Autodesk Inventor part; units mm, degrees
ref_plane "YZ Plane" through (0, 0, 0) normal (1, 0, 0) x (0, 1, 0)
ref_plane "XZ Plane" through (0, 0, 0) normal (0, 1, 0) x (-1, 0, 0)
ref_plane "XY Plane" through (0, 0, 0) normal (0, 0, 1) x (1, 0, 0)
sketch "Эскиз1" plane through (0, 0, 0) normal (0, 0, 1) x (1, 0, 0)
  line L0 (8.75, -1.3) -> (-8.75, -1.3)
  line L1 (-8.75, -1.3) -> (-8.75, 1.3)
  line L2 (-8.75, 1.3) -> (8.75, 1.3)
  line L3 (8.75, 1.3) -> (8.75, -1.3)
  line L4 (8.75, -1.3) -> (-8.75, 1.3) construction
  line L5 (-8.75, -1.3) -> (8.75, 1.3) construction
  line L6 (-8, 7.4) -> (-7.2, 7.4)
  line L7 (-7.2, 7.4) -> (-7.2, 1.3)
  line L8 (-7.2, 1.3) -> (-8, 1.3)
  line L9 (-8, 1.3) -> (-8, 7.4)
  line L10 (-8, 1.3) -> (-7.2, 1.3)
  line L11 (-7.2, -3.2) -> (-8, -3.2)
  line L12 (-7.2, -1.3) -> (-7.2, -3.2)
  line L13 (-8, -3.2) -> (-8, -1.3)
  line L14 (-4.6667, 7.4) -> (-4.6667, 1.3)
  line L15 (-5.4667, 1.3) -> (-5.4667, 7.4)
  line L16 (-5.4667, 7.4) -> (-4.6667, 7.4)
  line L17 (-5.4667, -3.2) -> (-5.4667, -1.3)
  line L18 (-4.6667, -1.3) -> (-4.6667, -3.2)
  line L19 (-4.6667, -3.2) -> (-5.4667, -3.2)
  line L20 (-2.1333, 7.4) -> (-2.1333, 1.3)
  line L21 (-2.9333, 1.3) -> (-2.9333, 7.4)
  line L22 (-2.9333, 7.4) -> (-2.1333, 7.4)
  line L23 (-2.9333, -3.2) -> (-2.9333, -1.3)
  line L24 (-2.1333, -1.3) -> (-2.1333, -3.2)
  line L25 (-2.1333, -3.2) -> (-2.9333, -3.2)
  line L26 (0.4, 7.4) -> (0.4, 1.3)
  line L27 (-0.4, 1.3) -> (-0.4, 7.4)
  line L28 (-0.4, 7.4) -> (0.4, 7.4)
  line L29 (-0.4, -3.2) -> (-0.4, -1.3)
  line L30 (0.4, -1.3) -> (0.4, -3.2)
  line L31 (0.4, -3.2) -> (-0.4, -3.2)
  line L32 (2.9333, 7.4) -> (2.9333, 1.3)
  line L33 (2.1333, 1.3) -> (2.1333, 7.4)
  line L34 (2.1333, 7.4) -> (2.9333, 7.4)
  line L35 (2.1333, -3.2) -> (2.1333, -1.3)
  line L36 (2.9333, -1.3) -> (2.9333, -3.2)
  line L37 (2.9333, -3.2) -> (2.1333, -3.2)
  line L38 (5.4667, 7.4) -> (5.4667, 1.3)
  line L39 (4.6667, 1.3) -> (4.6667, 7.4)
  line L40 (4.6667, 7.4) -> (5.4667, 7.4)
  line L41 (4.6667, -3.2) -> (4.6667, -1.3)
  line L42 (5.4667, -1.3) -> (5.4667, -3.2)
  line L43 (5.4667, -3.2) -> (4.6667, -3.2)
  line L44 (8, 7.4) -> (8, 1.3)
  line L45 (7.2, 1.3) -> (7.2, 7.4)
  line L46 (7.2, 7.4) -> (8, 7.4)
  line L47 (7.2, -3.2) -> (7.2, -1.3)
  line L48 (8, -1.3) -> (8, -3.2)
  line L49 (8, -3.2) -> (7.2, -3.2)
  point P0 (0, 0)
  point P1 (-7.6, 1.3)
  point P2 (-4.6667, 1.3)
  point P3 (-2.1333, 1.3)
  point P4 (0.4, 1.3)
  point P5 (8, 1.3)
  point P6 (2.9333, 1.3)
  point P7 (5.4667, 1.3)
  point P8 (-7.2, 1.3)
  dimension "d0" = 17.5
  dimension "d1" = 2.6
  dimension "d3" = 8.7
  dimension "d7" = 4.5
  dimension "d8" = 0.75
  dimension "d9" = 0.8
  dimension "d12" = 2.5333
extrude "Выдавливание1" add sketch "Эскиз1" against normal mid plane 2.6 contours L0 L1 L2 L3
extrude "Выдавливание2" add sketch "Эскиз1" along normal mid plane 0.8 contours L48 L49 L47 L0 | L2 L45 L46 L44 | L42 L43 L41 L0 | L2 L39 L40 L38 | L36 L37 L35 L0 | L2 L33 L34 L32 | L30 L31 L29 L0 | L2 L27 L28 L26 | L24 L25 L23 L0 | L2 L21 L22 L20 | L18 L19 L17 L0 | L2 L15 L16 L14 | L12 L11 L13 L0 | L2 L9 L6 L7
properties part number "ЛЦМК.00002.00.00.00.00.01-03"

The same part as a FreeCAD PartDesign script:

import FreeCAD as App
import Part
import Sketcher
Q = App.Units.Quantity

doc = App.newDocument("Part")
body = doc.addObject("PartDesign::Body", "Body")

# Sketch on XY plane
sketch1 = body.newObject("Sketcher::SketchObject", "Sketch")
sketch1.AttachmentSupport = (doc.getObject("XY_Plane"), [""])
sketch1.MapMode = "FlatFace"
sketch1.addGeometry(Part.LineSegment(App.Vector(-8.8, -1.3, 0), App.Vector(8.8, -1.3, 0)), False)
sketch1.addGeometry(Part.LineSegment(App.Vector(8.8, -1.3, 0), App.Vector(8.8, 1.3, 0)), False)
sketch1.addGeometry(Part.LineSegment(App.Vector(8.8, 1.3, 0), App.Vector(-8.8, 1.3, 0)), False)
sketch1.addGeometry(Part.LineSegment(App.Vector(-8.8, 1.3, 0), App.Vector(-8.8, -1.3, 0)), False)
sketch1.addConstraint(Sketcher.Constraint("Coincident", 0, 2, 1, 1))
sketch1.addConstraint(Sketcher.Constraint("Coincident", 1, 2, 2, 1))
sketch1.addConstraint(Sketcher.Constraint("Coincident", 2, 2, 3, 1))
sketch1.addConstraint(Sketcher.Constraint("Coincident", 3, 2, 0, 1))
sketch1.addConstraint(Sketcher.Constraint("Horizontal", 0))
sketch1.addConstraint(Sketcher.Constraint("Vertical", 1))
sketch1.addConstraint(Sketcher.Constraint("Horizontal", 2))
sketch1.addConstraint(Sketcher.Constraint("Vertical", 3))
sketch1.addConstraint(Sketcher.Constraint("Symmetric", 0, 2, 2, 2, -1, 1))
sketch1.addConstraint(Sketcher.Constraint("DistanceX", 0, 1, 0, 2, Q("17.5 mm")))
sketch1.addConstraint(Sketcher.Constraint("DistanceY", 1, 1, 1, 2, Q("2.6 mm")))
pad1 = body.newObject("PartDesign::Pad", "Pad")
pad1.Profile = sketch1
pad1.Length = 2.6
pad1.Midplane = True

# Sketch on XY plane
sketch2 = body.newObject("Sketcher::SketchObject", "Sketch001")
sketch2.AttachmentSupport = (doc.getObject("XY_Plane"), [""])
sketch2.MapMode = "FlatFace"
sketch2.addGeometry(Part.LineSegment(App.Vector(8, -3.2, 0), App.Vector(8, -1.3, 0)), False)
sketch2.addGeometry(Part.LineSegment(App.Vector(8, -1.3, 0), App.Vector(7.2, -1.3, 0)), False)
sketch2.addGeometry(Part.LineSegment(App.Vector(7.2, -1.3, 0), App.Vector(7.2, -3.2, 0)), False)
sketch2.addGeometry(Part.LineSegment(App.Vector(7.2, -3.2, 0), App.Vector(8, -3.2, 0)), False)
sketch2.addGeometry(Part.LineSegment(App.Vector(7.2, 1.3, 0), App.Vector(8, 1.3, 0)), False)
sketch2.addGeometry(Part.LineSegment(App.Vector(8, 1.3, 0), App.Vector(8, 7.4, 0)), False)
sketch2.addGeometry(Part.LineSegment(App.Vector(8, 7.4, 0), App.Vector(7.2, 7.4, 0)), False)
sketch2.addGeometry(Part.LineSegment(App.Vector(7.2, 7.4, 0), App.Vector(7.2, 1.3, 0)), False)
sketch2.addGeometry(Part.LineSegment(App.Vector(5.5, -3.2, 0), App.Vector(5.5, -1.3, 0)), False)
sketch2.addGeometry(Part.LineSegment(App.Vector(5.5, -1.3, 0), App.Vector(4.7, -1.3, 0)), False)
sketch2.addGeometry(Part.LineSegment(App.Vector(4.7, -1.3, 0), App.Vector(4.7, -3.2, 0)), False)
sketch2.addGeometry(Part.LineSegment(App.Vector(4.7, -3.2, 0), App.Vector(5.5, -3.2, 0)), False)
sketch2.addGeometry(Part.LineSegment(App.Vector(4.7, 1.3, 0), App.Vector(5.5, 1.3, 0)), False)
sketch2.addGeometry(Part.LineSegment(App.Vector(5.5, 1.3, 0), App.Vector(5.5, 7.4, 0)), False)
sketch2.addGeometry(Part.LineSegment(App.Vector(5.5, 7.4, 0), App.Vector(4.7, 7.4, 0)), False)
sketch2.addGeometry(Part.LineSegment(App.Vector(4.7, 7.4, 0), App.Vector(4.7, 1.3, 0)), False)
sketch2.addGeometry(Part.LineSegment(App.Vector(2.9, -3.2, 0), App.Vector(2.9, -1.3, 0)), False)
sketch2.addGeometry(Part.LineSegment(App.Vector(2.9, -1.3, 0), App.Vector(2.1, -1.3, 0)), False)
sketch2.addGeometry(Part.LineSegment(App.Vector(2.1, -1.3, 0), App.Vector(2.1, -3.2, 0)), False)
sketch2.addGeometry(Part.LineSegment(App.Vector(2.1, -3.2, 0), App.Vector(2.9, -3.2, 0)), False)
sketch2.addGeometry(Part.LineSegment(App.Vector(2.1, 1.3, 0), App.Vector(2.9, 1.3, 0)), False)
sketch2.addGeometry(Part.LineSegment(App.Vector(2.9, 1.3, 0), App.Vector(2.9, 7.4, 0)), False)
sketch2.addGeometry(Part.LineSegment(App.Vector(2.9, 7.4, 0), App.Vector(2.1, 7.4, 0)), False)
sketch2.addGeometry(Part.LineSegment(App.Vector(2.1, 7.4, 0), App.Vector(2.1, 1.3, 0)), False)
sketch2.addGeometry(Part.LineSegment(App.Vector(0.4, -3.2, 0), App.Vector(0.4, -1.3, 0)), False)
sketch2.addGeometry(Part.LineSegment(App.Vector(0.4, -1.3, 0), App.Vector(-0.4, -1.3, 0)), False)
sketch2.addGeometry(Part.LineSegment(App.Vector(-0.4, -1.3, 0), App.Vector(-0.4, -3.2, 0)), False)
sketch2.addGeometry(Part.LineSegment(App.Vector(-0.4, -3.2, 0), App.Vector(0.4, -3.2, 0)), False)
sketch2.addGeometry(Part.LineSegment(App.Vector(-0.4, 1.3, 0), App.Vector(0.4, 1.3, 0)), False)
sketch2.addGeometry(Part.LineSegment(App.Vector(0.4, 1.3, 0), App.Vector(0.4, 7.4, 0)), False)
sketch2.addGeometry(Part.LineSegment(App.Vector(0.4, 7.4, 0), App.Vector(-0.4, 7.4, 0)), False)
sketch2.addGeometry(Part.LineSegment(App.Vector(-0.4, 7.4, 0), App.Vector(-0.4, 1.3, 0)), False)
sketch2.addGeometry(Part.LineSegment(App.Vector(-2.1, -3.2, 0), App.Vector(-2.1, -1.3, 0)), False)
sketch2.addGeometry(Part.LineSegment(App.Vector(-2.1, -1.3, 0), App.Vector(-2.9, -1.3, 0)), False)
sketch2.addGeometry(Part.LineSegment(App.Vector(-2.9, -1.3, 0), App.Vector(-2.9, -3.2, 0)), False)
sketch2.addGeometry(Part.LineSegment(App.Vector(-2.9, -3.2, 0), App.Vector(-2.1, -3.2, 0)), False)
sketch2.addGeometry(Part.LineSegment(App.Vector(-2.9, 1.3, 0), App.Vector(-2.1, 1.3, 0)), False)
sketch2.addGeometry(Part.LineSegment(App.Vector(-2.1, 1.3, 0), App.Vector(-2.1, 7.4, 0)), False)
sketch2.addGeometry(Part.LineSegment(App.Vector(-2.1, 7.4, 0), App.Vector(-2.9, 7.4, 0)), False)
sketch2.addGeometry(Part.LineSegment(App.Vector(-2.9, 7.4, 0), App.Vector(-2.9, 1.3, 0)), False)
sketch2.addGeometry(Part.LineSegment(App.Vector(-4.7, -3.2, 0), App.Vector(-4.7, -1.3, 0)), False)
sketch2.addGeometry(Part.LineSegment(App.Vector(-4.7, -1.3, 0), App.Vector(-5.5, -1.3, 0)), False)
sketch2.addGeometry(Part.LineSegment(App.Vector(-5.5, -1.3, 0), App.Vector(-5.5, -3.2, 0)), False)
sketch2.addGeometry(Part.LineSegment(App.Vector(-5.5, -3.2, 0), App.Vector(-4.7, -3.2, 0)), False)
sketch2.addGeometry(Part.LineSegment(App.Vector(-5.5, 1.3, 0), App.Vector(-4.7, 1.3, 0)), False)
sketch2.addGeometry(Part.LineSegment(App.Vector(-4.7, 1.3, 0), App.Vector(-4.7, 7.4, 0)), False)
sketch2.addGeometry(Part.LineSegment(App.Vector(-4.7, 7.4, 0), App.Vector(-5.5, 7.4, 0)), False)
sketch2.addGeometry(Part.LineSegment(App.Vector(-5.5, 7.4, 0), App.Vector(-5.5, 1.3, 0)), False)
sketch2.addGeometry(Part.LineSegment(App.Vector(-7.2, -3.2, 0), App.Vector(-7.2, -1.3, 0)), False)
sketch2.addGeometry(Part.LineSegment(App.Vector(-7.2, -1.3, 0), App.Vector(-8, -1.3, 0)), False)
sketch2.addGeometry(Part.LineSegment(App.Vector(-8, -1.3, 0), App.Vector(-8, -3.2, 0)), False)
sketch2.addGeometry(Part.LineSegment(App.Vector(-8, -3.2, 0), App.Vector(-7.2, -3.2, 0)), False)
sketch2.addGeometry(Part.LineSegment(App.Vector(-8, 1.3, 0), App.Vector(-7.2, 1.3, 0)), False)
sketch2.addGeometry(Part.LineSegment(App.Vector(-7.2, 1.3, 0), App.Vector(-7.2, 7.4, 0)), False)
sketch2.addGeometry(Part.LineSegment(App.Vector(-7.2, 7.4, 0), App.Vector(-8, 7.4, 0)), False)
sketch2.addGeometry(Part.LineSegment(App.Vector(-8, 7.4, 0), App.Vector(-8, 1.3, 0)), False)
sketch2.addConstraint(Sketcher.Constraint("Coincident", 0, 2, 1, 1))
sketch2.addConstraint(Sketcher.Constraint("Coincident", 1, 2, 2, 1))
sketch2.addConstraint(Sketcher.Constraint("Coincident", 2, 2, 3, 1))
sketch2.addConstraint(Sketcher.Constraint("Coincident", 3, 2, 0, 1))
sketch2.addConstraint(Sketcher.Constraint("Coincident", 4, 2, 5, 1))
sketch2.addConstraint(Sketcher.Constraint("Coincident", 5, 2, 6, 1))
sketch2.addConstraint(Sketcher.Constraint("Coincident", 6, 2, 7, 1))
sketch2.addConstraint(Sketcher.Constraint("Coincident", 7, 2, 4, 1))
sketch2.addConstraint(Sketcher.Constraint("Coincident", 8, 2, 9, 1))
sketch2.addConstraint(Sketcher.Constraint("Coincident", 9, 2, 10, 1))
sketch2.addConstraint(Sketcher.Constraint("Coincident", 10, 2, 11, 1))
sketch2.addConstraint(Sketcher.Constraint("Coincident", 11, 2, 8, 1))
sketch2.addConstraint(Sketcher.Constraint("Coincident", 12, 2, 13, 1))
sketch2.addConstraint(Sketcher.Constraint("Coincident", 13, 2, 14, 1))
sketch2.addConstraint(Sketcher.Constraint("Coincident", 14, 2, 15, 1))
sketch2.addConstraint(Sketcher.Constraint("Coincident", 15, 2, 12, 1))
sketch2.addConstraint(Sketcher.Constraint("Coincident", 16, 2, 17, 1))
sketch2.addConstraint(Sketcher.Constraint("Coincident", 17, 2, 18, 1))
sketch2.addConstraint(Sketcher.Constraint("Coincident", 18, 2, 19, 1))
sketch2.addConstraint(Sketcher.Constraint("Coincident", 19, 2, 16, 1))
sketch2.addConstraint(Sketcher.Constraint("Coincident", 20, 2, 21, 1))
sketch2.addConstraint(Sketcher.Constraint("Coincident", 21, 2, 22, 1))
sketch2.addConstraint(Sketcher.Constraint("Coincident", 22, 2, 23, 1))
sketch2.addConstraint(Sketcher.Constraint("Coincident", 23, 2, 20, 1))
sketch2.addConstraint(Sketcher.Constraint("Coincident", 24, 2, 25, 1))
sketch2.addConstraint(Sketcher.Constraint("Coincident", 25, 2, 26, 1))
sketch2.addConstraint(Sketcher.Constraint("Coincident", 26, 2, 27, 1))
sketch2.addConstraint(Sketcher.Constraint("Coincident", 27, 2, 24, 1))
sketch2.addConstraint(Sketcher.Constraint("Coincident", 28, 2, 29, 1))
sketch2.addConstraint(Sketcher.Constraint("Coincident", 29, 2, 30, 1))
sketch2.addConstraint(Sketcher.Constraint("Coincident", 30, 2, 31, 1))
sketch2.addConstraint(Sketcher.Constraint("Coincident", 31, 2, 28, 1))
sketch2.addConstraint(Sketcher.Constraint("Coincident", 32, 2, 33, 1))
sketch2.addConstraint(Sketcher.Constraint("Coincident", 33, 2, 34, 1))
sketch2.addConstraint(Sketcher.Constraint("Coincident", 34, 2, 35, 1))
sketch2.addConstraint(Sketcher.Constraint("Coincident", 35, 2, 32, 1))
sketch2.addConstraint(Sketcher.Constraint("Coincident", 36, 2, 37, 1))
sketch2.addConstraint(Sketcher.Constraint("Coincident", 37, 2, 38, 1))
sketch2.addConstraint(Sketcher.Constraint("Coincident", 38, 2, 39, 1))
sketch2.addConstraint(Sketcher.Constraint("Coincident", 39, 2, 36, 1))
sketch2.addConstraint(Sketcher.Constraint("Coincident", 40, 2, 41, 1))
sketch2.addConstraint(Sketcher.Constraint("Coincident", 41, 2, 42, 1))
sketch2.addConstraint(Sketcher.Constraint("Coincident", 42, 2, 43, 1))
sketch2.addConstraint(Sketcher.Constraint("Coincident", 43, 2, 40, 1))
sketch2.addConstraint(Sketcher.Constraint("Coincident", 44, 2, 45, 1))
sketch2.addConstraint(Sketcher.Constraint("Coincident", 45, 2, 46, 1))
sketch2.addConstraint(Sketcher.Constraint("Coincident", 46, 2, 47, 1))
sketch2.addConstraint(Sketcher.Constraint("Coincident", 47, 2, 44, 1))
sketch2.addConstraint(Sketcher.Constraint("Coincident", 48, 2, 49, 1))
sketch2.addConstraint(Sketcher.Constraint("Coincident", 49, 2, 50, 1))
sketch2.addConstraint(Sketcher.Constraint("Coincident", 50, 2, 51, 1))
sketch2.addConstraint(Sketcher.Constraint("Coincident", 51, 2, 48, 1))
sketch2.addConstraint(Sketcher.Constraint("Coincident", 52, 2, 53, 1))
sketch2.addConstraint(Sketcher.Constraint("Coincident", 53, 2, 54, 1))
sketch2.addConstraint(Sketcher.Constraint("Coincident", 54, 2, 55, 1))
sketch2.addConstraint(Sketcher.Constraint("Coincident", 55, 2, 52, 1))
sketch2.addConstraint(Sketcher.Constraint("Vertical", 0))
sketch2.addConstraint(Sketcher.Constraint("Horizontal", 1))
sketch2.addConstraint(Sketcher.Constraint("Vertical", 2))
sketch2.addConstraint(Sketcher.Constraint("Horizontal", 3))
sketch2.addConstraint(Sketcher.Constraint("Horizontal", 4))
sketch2.addConstraint(Sketcher.Constraint("Vertical", 5))
sketch2.addConstraint(Sketcher.Constraint("Horizontal", 6))
sketch2.addConstraint(Sketcher.Constraint("Vertical", 7))
sketch2.addConstraint(Sketcher.Constraint("Vertical", 8))
sketch2.addConstraint(Sketcher.Constraint("Horizontal", 9))
sketch2.addConstraint(Sketcher.Constraint("Vertical", 10))
sketch2.addConstraint(Sketcher.Constraint("Horizontal", 11))
sketch2.addConstraint(Sketcher.Constraint("Horizontal", 12))
sketch2.addConstraint(Sketcher.Constraint("Vertical", 13))
sketch2.addConstraint(Sketcher.Constraint("Horizontal", 14))
sketch2.addConstraint(Sketcher.Constraint("Vertical", 15))
sketch2.addConstraint(Sketcher.Constraint("Vertical", 16))
sketch2.addConstraint(Sketcher.Constraint("Horizontal", 17))
sketch2.addConstraint(Sketcher.Constraint("Vertical", 18))
sketch2.addConstraint(Sketcher.Constraint("Horizontal", 19))
sketch2.addConstraint(Sketcher.Constraint("Horizontal", 20))
sketch2.addConstraint(Sketcher.Constraint("Vertical", 21))
sketch2.addConstraint(Sketcher.Constraint("Horizontal", 22))
sketch2.addConstraint(Sketcher.Constraint("Vertical", 23))
sketch2.addConstraint(Sketcher.Constraint("Vertical", 24))
sketch2.addConstraint(Sketcher.Constraint("Horizontal", 25))
sketch2.addConstraint(Sketcher.Constraint("Vertical", 26))
sketch2.addConstraint(Sketcher.Constraint("Horizontal", 27))
sketch2.addConstraint(Sketcher.Constraint("Horizontal", 28))
sketch2.addConstraint(Sketcher.Constraint("Vertical", 29))
sketch2.addConstraint(Sketcher.Constraint("Horizontal", 30))
sketch2.addConstraint(Sketcher.Constraint("Vertical", 31))
sketch2.addConstraint(Sketcher.Constraint("Vertical", 32))
sketch2.addConstraint(Sketcher.Constraint("Horizontal", 33))
sketch2.addConstraint(Sketcher.Constraint("Vertical", 34))
sketch2.addConstraint(Sketcher.Constraint("Horizontal", 35))
sketch2.addConstraint(Sketcher.Constraint("Horizontal", 36))
sketch2.addConstraint(Sketcher.Constraint("Vertical", 37))
sketch2.addConstraint(Sketcher.Constraint("Horizontal", 38))
sketch2.addConstraint(Sketcher.Constraint("Vertical", 39))
sketch2.addConstraint(Sketcher.Constraint("Vertical", 40))
sketch2.addConstraint(Sketcher.Constraint("Horizontal", 41))
sketch2.addConstraint(Sketcher.Constraint("Vertical", 42))
sketch2.addConstraint(Sketcher.Constraint("Horizontal", 43))
sketch2.addConstraint(Sketcher.Constraint("Horizontal", 44))
sketch2.addConstraint(Sketcher.Constraint("Vertical", 45))
sketch2.addConstraint(Sketcher.Constraint("Horizontal", 46))
sketch2.addConstraint(Sketcher.Constraint("Vertical", 47))
sketch2.addConstraint(Sketcher.Constraint("Vertical", 48))
sketch2.addConstraint(Sketcher.Constraint("Horizontal", 49))
sketch2.addConstraint(Sketcher.Constraint("Vertical", 50))
sketch2.addConstraint(Sketcher.Constraint("Horizontal", 51))
sketch2.addConstraint(Sketcher.Constraint("Horizontal", 52))
sketch2.addConstraint(Sketcher.Constraint("Vertical", 53))
sketch2.addConstraint(Sketcher.Constraint("Horizontal", 54))
sketch2.addConstraint(Sketcher.Constraint("Vertical", 55))
sketch2.addConstraint(Sketcher.Constraint("Symmetric", 25, 2, 28, 2, -1, 1))
sketch2.addConstraint(Sketcher.Constraint("Symmetric", 23, 2, 32, 2, -1, 1))
sketch2.addConstraint(Sketcher.Constraint("Symmetric", 17, 2, 36, 2, -1, 1))
sketch2.addConstraint(Sketcher.Constraint("Symmetric", 15, 2, 40, 2, -1, 1))
sketch2.addConstraint(Sketcher.Constraint("Symmetric", 9, 2, 44, 2, -1, 1))
sketch2.addConstraint(Sketcher.Constraint("Symmetric", 7, 2, 48, 2, -1, 1))
sketch2.addConstraint(Sketcher.Constraint("Symmetric", 1, 2, 52, 2, -1, 1))
sketch2.addConstraint(Sketcher.Constraint("Symmetric", 17, 2, 32, 2, -2))
sketch2.addConstraint(Sketcher.Constraint("Symmetric", 19, 2, 34, 2, -2))
sketch2.addConstraint(Sketcher.Constraint("Symmetric", 21, 2, 38, 2, -2))
sketch2.addConstraint(Sketcher.Constraint("Symmetric", 9, 2, 40, 2, -2))
sketch2.addConstraint(Sketcher.Constraint("Symmetric", 11, 2, 42, 2, -2))
sketch2.addConstraint(Sketcher.Constraint("Symmetric", 13, 2, 46, 2, -2))
sketch2.addConstraint(Sketcher.Constraint("Symmetric", 1, 2, 48, 2, -2))
sketch2.addConstraint(Sketcher.Constraint("Symmetric", 3, 2, 50, 2, -2))
sketch2.addConstraint(Sketcher.Constraint("Symmetric", 5, 2, 54, 2, -2))
sketch2.addConstraint(Sketcher.Constraint("Horizontal", 1, 2, 8, 2))
sketch2.addConstraint(Sketcher.Constraint("Horizontal", 3, 2, 10, 2))
sketch2.addConstraint(Sketcher.Constraint("Horizontal", 6, 2, 13, 2))
sketch2.addConstraint(Sketcher.Constraint("Horizontal", 9, 2, 16, 2))
sketch2.addConstraint(Sketcher.Constraint("Horizontal", 11, 2, 18, 2))
sketch2.addConstraint(Sketcher.Constraint("Horizontal", 14, 2, 21, 2))
sketch2.addConstraint(Sketcher.Constraint("Horizontal", 17, 2, 24, 2))
sketch2.addConstraint(Sketcher.Constraint("Horizontal", 19, 2, 26, 2))
sketch2.addConstraint(Sketcher.Constraint("Horizontal", 22, 2, 29, 2))
sketch2.addConstraint(Sketcher.Constraint("Vertical", 3, 2, 4, 2))
sketch2.addConstraint(Sketcher.Constraint("Vertical", 11, 2, 12, 2))
sketch2.addConstraint(Sketcher.Constraint("Vertical", 19, 2, 20, 2))
sketch2.addConstraint(Sketcher.Constraint("Vertical", 27, 2, 28, 2))
sketch2.addConstraint(Sketcher.Constraint("Vertical", 26, 2, 30, 2))
sketch2.addConstraint(Sketcher.Constraint("Equal", 6, 9))
sketch2.addConstraint(Sketcher.Constraint("Equal", 14, 17))
sketch2.addConstraint(Sketcher.Constraint("Equal", 22, 25))
sketch2.addConstraint(Sketcher.Constraint("DistanceX", 1, 2, 1, 1, Q("0.8 mm")))
sketch2.addConstraint(Sketcher.Constraint("DistanceY", 0, 2, 4, 2, Q("2.6 mm")))
sketch2.addConstraint(Sketcher.Constraint("DistanceY", 3, 2, 4, 2, Q("4.5 mm")))
sketch2.addConstraint(Sketcher.Constraint("DistanceY", 0, 2, 5, 2, Q("8.7 mm")))
sketch2.addConstraint(Sketcher.Constraint("DistanceX", -1, 1, 0, 2, Q("8 mm")))
sketch2.addConstraint(Sketcher.Constraint("DistanceX", 8, 2, 0, 2, Q("2.5333 mm")))
sketch2.addConstraint(Sketcher.Constraint("DistanceX", 16, 2, 8, 2, Q("2.5334 mm")))
pad2 = body.newObject("PartDesign::Pad", "Pad001")
pad2.Profile = sketch2
pad2.Length = 0.8
pad2.Midplane = True

doc.recompute()
